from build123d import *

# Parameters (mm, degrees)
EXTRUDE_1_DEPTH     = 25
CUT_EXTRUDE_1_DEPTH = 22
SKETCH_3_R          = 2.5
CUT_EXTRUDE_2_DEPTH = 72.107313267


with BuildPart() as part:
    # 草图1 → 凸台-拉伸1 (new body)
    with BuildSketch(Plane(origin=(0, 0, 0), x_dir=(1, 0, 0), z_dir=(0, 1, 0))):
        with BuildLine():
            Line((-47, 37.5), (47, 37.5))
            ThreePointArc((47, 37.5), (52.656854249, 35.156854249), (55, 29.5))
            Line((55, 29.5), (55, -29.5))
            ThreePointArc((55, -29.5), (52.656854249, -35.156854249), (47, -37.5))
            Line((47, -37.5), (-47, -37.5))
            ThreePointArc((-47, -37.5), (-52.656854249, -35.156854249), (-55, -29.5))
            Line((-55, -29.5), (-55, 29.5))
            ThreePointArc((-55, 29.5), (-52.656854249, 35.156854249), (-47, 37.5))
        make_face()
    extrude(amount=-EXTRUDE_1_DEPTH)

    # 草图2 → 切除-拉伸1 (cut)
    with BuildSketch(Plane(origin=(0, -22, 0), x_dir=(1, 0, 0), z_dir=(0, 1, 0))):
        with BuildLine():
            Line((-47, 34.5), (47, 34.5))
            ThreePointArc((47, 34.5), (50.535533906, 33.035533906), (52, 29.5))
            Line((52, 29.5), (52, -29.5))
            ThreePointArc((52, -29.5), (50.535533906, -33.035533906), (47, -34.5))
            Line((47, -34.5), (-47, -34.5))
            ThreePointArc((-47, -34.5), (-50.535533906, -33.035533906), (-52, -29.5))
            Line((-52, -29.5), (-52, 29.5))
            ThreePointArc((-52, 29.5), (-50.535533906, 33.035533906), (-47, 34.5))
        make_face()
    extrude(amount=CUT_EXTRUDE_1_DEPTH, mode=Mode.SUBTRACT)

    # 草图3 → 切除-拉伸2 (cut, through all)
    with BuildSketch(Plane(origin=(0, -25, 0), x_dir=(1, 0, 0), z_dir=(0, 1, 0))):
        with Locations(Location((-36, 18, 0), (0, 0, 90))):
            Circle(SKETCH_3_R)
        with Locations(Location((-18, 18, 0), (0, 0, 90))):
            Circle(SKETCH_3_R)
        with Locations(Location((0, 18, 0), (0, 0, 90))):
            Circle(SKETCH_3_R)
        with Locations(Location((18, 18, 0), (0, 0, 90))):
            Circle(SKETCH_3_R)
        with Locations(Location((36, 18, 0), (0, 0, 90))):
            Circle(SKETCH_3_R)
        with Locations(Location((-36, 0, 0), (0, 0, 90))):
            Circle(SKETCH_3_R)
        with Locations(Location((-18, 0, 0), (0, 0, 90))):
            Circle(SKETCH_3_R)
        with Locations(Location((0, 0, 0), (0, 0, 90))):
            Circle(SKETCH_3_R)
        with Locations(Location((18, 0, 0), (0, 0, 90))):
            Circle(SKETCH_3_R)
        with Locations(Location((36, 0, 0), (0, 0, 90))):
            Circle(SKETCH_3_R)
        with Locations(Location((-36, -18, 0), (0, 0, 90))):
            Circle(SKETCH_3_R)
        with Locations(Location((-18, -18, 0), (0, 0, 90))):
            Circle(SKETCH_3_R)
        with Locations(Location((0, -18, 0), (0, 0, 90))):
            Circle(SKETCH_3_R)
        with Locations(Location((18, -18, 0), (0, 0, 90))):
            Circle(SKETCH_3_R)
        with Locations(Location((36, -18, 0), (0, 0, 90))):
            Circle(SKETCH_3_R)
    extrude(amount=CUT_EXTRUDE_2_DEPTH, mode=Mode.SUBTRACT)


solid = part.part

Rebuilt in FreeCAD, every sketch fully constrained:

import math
import FreeCAD as App
import Part
import Sketcher

V = App.Vector
Q = App.Units.Quantity

doc = App.newDocument("Part")
params = doc.addObject("Spreadsheet::Sheet", "Params")
for row, (alias, value) in enumerate([
    ("sketch1_radius", "8 mm"),
    ("sketch1_width", "94 mm"),
    ("sketch1_height", "59 mm"),
    ("pad1_length", "25 mm"),
    ("sketch2_radius", "5 mm"),
    ("sketch2_width", "94 mm"),
    ("sketch2_height", "59 mm"),
    ("pocket1_length", "22 mm"),
    ("sketch3_diameter", "5 mm"),
], start=1):
    params.set(f"A{row}", alias)
    params.set(f"B{row}", "=" + value)
    params.setAlias(f"B{row}", alias)

body = doc.addObject("PartDesign::Body", "Body")

sketch1 = doc.addObject("Sketcher::SketchObject", "Sketch")
body.addObject(sketch1)
sketch1.AttachmentSupport = (doc.XZ_Plane, [""])
sketch1.MapMode = "FlatFace"
sketch1.addGeometry(Part.LineSegment(V(47, -37.5, 0), V(-47, -37.5, 0)), False)
sketch1.addGeometry(Part.ArcOfCircle(Part.Circle(V(-47, -29.5, 0), V(0, 0, 1), 8), math.radians(-180), math.radians(-90)), False)
sketch1.addGeometry(Part.LineSegment(V(-55, -29.5, 0), V(-55, 29.5, 0)), False)
sketch1.addGeometry(Part.ArcOfCircle(Part.Circle(V(-47, 29.5, 0), V(0, 0, 1), 8), math.radians(90), math.radians(180)), False)
sketch1.addGeometry(Part.LineSegment(V(-47, 37.5, 0), V(47, 37.5, 0)), False)
sketch1.addGeometry(Part.ArcOfCircle(Part.Circle(V(47, 29.5, 0), V(0, 0, 1), 8), math.radians(0), math.radians(90)), False)
sketch1.addGeometry(Part.LineSegment(V(55, 29.5, 0), V(55, -29.5, 0)), False)
sketch1.addGeometry(Part.ArcOfCircle(Part.Circle(V(47, -29.5, 0), V(0, 0, 1), 8), math.radians(-90), math.radians(0)), False)
sketch1.addConstraint(Sketcher.Constraint("Tangent", 0, 2, 1, 2))
sketch1.addConstraint(Sketcher.Constraint("Tangent", 1, 1, 2, 1))
sketch1.addConstraint(Sketcher.Constraint("Tangent", 2, 2, 3, 2))
sketch1.addConstraint(Sketcher.Constraint("Tangent", 3, 1, 4, 1))
sketch1.addConstraint(Sketcher.Constraint("Tangent", 4, 2, 5, 2))
sketch1.addConstraint(Sketcher.Constraint("Tangent", 5, 1, 6, 1))
sketch1.addConstraint(Sketcher.Constraint("Tangent", 6, 2, 7, 2))
sketch1.addConstraint(Sketcher.Constraint("Tangent", 7, 1, 0, 1))
sketch1.addConstraint(Sketcher.Constraint("Horizontal", 0))
sketch1.addConstraint(Sketcher.Constraint("Vertical", 2))
sketch1.addConstraint(Sketcher.Constraint("Horizontal", 4))
sketch1.addConstraint(Sketcher.Constraint("Vertical", 6))
sketch1.addConstraint(Sketcher.Constraint("Equal", 1, 3))
sketch1.addConstraint(Sketcher.Constraint("Equal", 3, 5))
sketch1.addConstraint(Sketcher.Constraint("Equal", 5, 7))
sketch1.addConstraint(Sketcher.Constraint("Symmetric", 1, 3, 5, 3, -1, 1))
sketch1.addConstraint(Sketcher.Constraint("Radius", 1, Q("8 mm")))
sketch1.addConstraint(Sketcher.Constraint("DistanceX", 0, 2, 0, 1, Q("94 mm")))
sketch1.addConstraint(Sketcher.Constraint("DistanceY", 2, 1, 2, 2, Q("59 mm")))
sketch1.setExpression("Constraints[16]", "Params.sketch1_radius")
sketch1.setExpression("Constraints[17]", "Params.sketch1_width")
sketch1.setExpression("Constraints[18]", "Params.sketch1_height")
pad1 = doc.addObject("PartDesign::Pad", "Pad")
body.addObject(pad1)
pad1.Profile = sketch1
pad1.setExpression("Length", "Params.pad1_length")

sketch2 = doc.addObject("Sketcher::SketchObject", "Sketch001")
body.addObject(sketch2)
sketch2.AttachmentSupport = (doc.XZ_Plane, [""])
sketch2.MapMode = "FlatFace"
sketch2.AttachmentOffset = App.Placement(V(0, 0, 22), App.Rotation())
sketch2.addGeometry(Part.LineSegment(V(47, -34.5, 0), V(-47, -34.5, 0)), False)
sketch2.addGeometry(Part.ArcOfCircle(Part.Circle(V(-47, -29.5, 0), V(0, 0, 1), 5), math.radians(180), math.radians(270)), False)
sketch2.addGeometry(Part.LineSegment(V(-52, -29.5, 0), V(-52, 29.5, 0)), False)
sketch2.addGeometry(Part.ArcOfCircle(Part.Circle(V(-47, 29.5, 0), V(0, 0, 1), 5), math.radians(90), math.radians(180)), False)
sketch2.addGeometry(Part.LineSegment(V(-47, 34.5, 0), V(47, 34.5, 0)), False)
sketch2.addGeometry(Part.ArcOfCircle(Part.Circle(V(47, 29.5, 0), V(0, 0, 1), 5), math.radians(0), math.radians(90)), False)
sketch2.addGeometry(Part.LineSegment(V(52, 29.5, 0), V(52, -29.5, 0)), False)
sketch2.addGeometry(Part.ArcOfCircle(Part.Circle(V(47, -29.5, 0), V(0, 0, 1), 5), math.radians(-90), math.radians(0)), False)
sketch2.addConstraint(Sketcher.Constraint("Tangent", 0, 2, 1, 2))
sketch2.addConstraint(Sketcher.Constraint("Tangent", 1, 1, 2, 1))
sketch2.addConstraint(Sketcher.Constraint("Tangent", 2, 2, 3, 2))
sketch2.addConstraint(Sketcher.Constraint("Tangent", 3, 1, 4, 1))
sketch2.addConstraint(Sketcher.Constraint("Tangent", 4, 2, 5, 2))
sketch2.addConstraint(Sketcher.Constraint("Tangent", 5, 1, 6, 1))
sketch2.addConstraint(Sketcher.Constraint("Tangent", 6, 2, 7, 2))
sketch2.addConstraint(Sketcher.Constraint("Tangent", 7, 1, 0, 1))
sketch2.addConstraint(Sketcher.Constraint("Horizontal", 0))
sketch2.addConstraint(Sketcher.Constraint("Vertical", 2))
sketch2.addConstraint(Sketcher.Constraint("Horizontal", 4))
sketch2.addConstraint(Sketcher.Constraint("Vertical", 6))
sketch2.addConstraint(Sketcher.Constraint("Equal", 1, 3))
sketch2.addConstraint(Sketcher.Constraint("Equal", 3, 5))
sketch2.addConstraint(Sketcher.Constraint("Equal", 5, 7))
sketch2.addConstraint(Sketcher.Constraint("Symmetric", 1, 3, 5, 3, -1, 1))
sketch2.addConstraint(Sketcher.Constraint("Radius", 1, Q("5 mm")))
sketch2.addConstraint(Sketcher.Constraint("DistanceX", 0, 2, 0, 1, Q("94 mm")))
sketch2.addConstraint(Sketcher.Constraint("DistanceY", 2, 1, 2, 2, Q("59 mm")))
sketch2.setExpression("Constraints[16]", "Params.sketch2_radius")
sketch2.setExpression("Constraints[17]", "Params.sketch2_width")
sketch2.setExpression("Constraints[18]", "Params.sketch2_height")
pocket1 = doc.addObject("PartDesign::Pocket", "Pocket")
body.addObject(pocket1)
pocket1.Profile = sketch2
pocket1.setExpression("Length", "Params.pocket1_length")

sketch3 = doc.addObject("Sketcher::SketchObject", "Sketch002")
body.addObject(sketch3)
sketch3.AttachmentSupport = (doc.XZ_Plane, [""])
sketch3.MapMode = "FlatFace"
sketch3.AttachmentOffset = App.Placement(V(0, 0, 25), App.Rotation())
sketch3.addGeometry(Part.Circle(V(-36, -18, 0), V(0, 0, 1), 2.5), False)
sketch3.addGeometry(Part.Circle(V(-18, -18, 0), V(0, 0, 1), 2.5), False)
sketch3.addGeometry(Part.Circle(V(0, -18, 0), V(0, 0, 1), 2.5), False)
sketch3.addGeometry(Part.Circle(V(18, -18, 0), V(0, 0, 1), 2.5), False)
sketch3.addGeometry(Part.Circle(V(36, -18, 0), V(0, 0, 1), 2.5), False)
sketch3.addGeometry(Part.Circle(V(-36, 0, 0), V(0, 0, 1), 2.5), False)
sketch3.addGeometry(Part.Circle(V(-18, 0, 0), V(0, 0, 1), 2.5), False)
sketch3.addGeometry(Part.Circle(V(0, 0, 0), V(0, 0, 1), 2.5), False)
sketch3.addGeometry(Part.Circle(V(18, 0, 0), V(0, 0, 1), 2.5), False)
sketch3.addGeometry(Part.Circle(V(36, 0, 0), V(0, 0, 1), 2.5), False)
sketch3.addGeometry(Part.Circle(V(-36, 18, 0), V(0, 0, 1), 2.5), False)
sketch3.addGeometry(Part.Circle(V(-18, 18, 0), V(0, 0, 1), 2.5), False)
sketch3.addGeometry(Part.Circle(V(0, 18, 0), V(0, 0, 1), 2.5), False)
sketch3.addGeometry(Part.Circle(V(18, 18, 0), V(0, 0, 1), 2.5), False)
sketch3.addGeometry(Part.Circle(V(36, 18, 0), V(0, 0, 1), 2.5), False)
sketch3.addConstraint(Sketcher.Constraint("Coincident", 7, 3, -1, 1))
sketch3.addConstraint(Sketcher.Constraint("Equal", 0, 1))
sketch3.addConstraint(Sketcher.Constraint("Equal", 1, 2))
sketch3.addConstraint(Sketcher.Constraint("Equal", 2, 3))
sketch3.addConstraint(Sketcher.Constraint("Equal", 3, 4))
sketch3.addConstraint(Sketcher.Constraint("Equal", 4, 5))
sketch3.addConstraint(Sketcher.Constraint("Equal", 5, 6))
sketch3.addConstraint(Sketcher.Constraint("Equal", 6, 7))
sketch3.addConstraint(Sketcher.Constraint("Equal", 7, 8))
sketch3.addConstraint(Sketcher.Constraint("Equal", 8, 9))
sketch3.addConstraint(Sketcher.Constraint("Equal", 9, 10))
sketch3.addConstraint(Sketcher.Constraint("Equal", 10, 11))
sketch3.addConstraint(Sketcher.Constraint("Equal", 11, 12))
sketch3.addConstraint(Sketcher.Constraint("Equal", 12, 13))
sketch3.addConstraint(Sketcher.Constraint("Equal", 13, 14))
sketch3.addConstraint(Sketcher.Constraint("Symmetric", 6, 3, 8, 3, -1, 1))
sketch3.addConstraint(Sketcher.Constraint("Symmetric", 5, 3, 9, 3, -1, 1))
sketch3.addConstraint(Sketcher.Constraint("Symmetric", 4, 3, 10, 3, -1, 1))
sketch3.addConstraint(Sketcher.Constraint("Symmetric", 3, 3, 11, 3, -1, 1))
sketch3.addConstraint(Sketcher.Constraint("Symmetric", 2, 3, 12, 3, -1, 1))
sketch3.addConstraint(Sketcher.Constraint("Symmetric", 1, 3, 13, 3, -1, 1))
sketch3.addConstraint(Sketcher.Constraint("Symmetric", 0, 3, 14, 3, -1, 1))
sketch3.addConstraint(Sketcher.Constraint("Symmetric", 1, 3, 3, 3, -2))
sketch3.addConstraint(Sketcher.Constraint("Symmetric", 0, 3, 4, 3, -2))
sketch3.addConstraint(Sketcher.Constraint("PointOnObject", 2, 3, -2))
sketch3.addConstraint(Sketcher.Constraint("PointOnObject", 5, 3, -1))
sketch3.addConstraint(Sketcher.Constraint("PointOnObject", 6, 3, -1))
sketch3.addConstraint(Sketcher.Constraint("Horizontal", 0, 3, 1, 3))
sketch3.addConstraint(Sketcher.Constraint("Horizontal", 1, 3, 2, 3))
sketch3.addConstraint(Sketcher.Constraint("Vertical", 0, 3, 5, 3))
sketch3.addConstraint(Sketcher.Constraint("Vertical", 1, 3, 6, 3))
sketch3.addConstraint(Sketcher.Constraint("Diameter", 0, Q("5 mm")))
sketch3.addConstraint(Sketcher.Constraint("DistanceX", 0, 3, -1, 1, Q("36 mm")))
sketch3.addConstraint(Sketcher.Constraint("DistanceY", 0, 3, -1, 1, Q("18 mm")))
sketch3.addConstraint(Sketcher.Constraint("DistanceX", 1, 3, -1, 1, Q("18 mm")))
sketch3.setExpression("Constraints[31]", "Params.sketch3_diameter")
pocket2 = doc.addObject("PartDesign::Pocket", "Pocket001")
body.addObject(pocket2)
pocket2.Profile = sketch3
pocket2.Type = "ThroughAll"

doc.recompute()
